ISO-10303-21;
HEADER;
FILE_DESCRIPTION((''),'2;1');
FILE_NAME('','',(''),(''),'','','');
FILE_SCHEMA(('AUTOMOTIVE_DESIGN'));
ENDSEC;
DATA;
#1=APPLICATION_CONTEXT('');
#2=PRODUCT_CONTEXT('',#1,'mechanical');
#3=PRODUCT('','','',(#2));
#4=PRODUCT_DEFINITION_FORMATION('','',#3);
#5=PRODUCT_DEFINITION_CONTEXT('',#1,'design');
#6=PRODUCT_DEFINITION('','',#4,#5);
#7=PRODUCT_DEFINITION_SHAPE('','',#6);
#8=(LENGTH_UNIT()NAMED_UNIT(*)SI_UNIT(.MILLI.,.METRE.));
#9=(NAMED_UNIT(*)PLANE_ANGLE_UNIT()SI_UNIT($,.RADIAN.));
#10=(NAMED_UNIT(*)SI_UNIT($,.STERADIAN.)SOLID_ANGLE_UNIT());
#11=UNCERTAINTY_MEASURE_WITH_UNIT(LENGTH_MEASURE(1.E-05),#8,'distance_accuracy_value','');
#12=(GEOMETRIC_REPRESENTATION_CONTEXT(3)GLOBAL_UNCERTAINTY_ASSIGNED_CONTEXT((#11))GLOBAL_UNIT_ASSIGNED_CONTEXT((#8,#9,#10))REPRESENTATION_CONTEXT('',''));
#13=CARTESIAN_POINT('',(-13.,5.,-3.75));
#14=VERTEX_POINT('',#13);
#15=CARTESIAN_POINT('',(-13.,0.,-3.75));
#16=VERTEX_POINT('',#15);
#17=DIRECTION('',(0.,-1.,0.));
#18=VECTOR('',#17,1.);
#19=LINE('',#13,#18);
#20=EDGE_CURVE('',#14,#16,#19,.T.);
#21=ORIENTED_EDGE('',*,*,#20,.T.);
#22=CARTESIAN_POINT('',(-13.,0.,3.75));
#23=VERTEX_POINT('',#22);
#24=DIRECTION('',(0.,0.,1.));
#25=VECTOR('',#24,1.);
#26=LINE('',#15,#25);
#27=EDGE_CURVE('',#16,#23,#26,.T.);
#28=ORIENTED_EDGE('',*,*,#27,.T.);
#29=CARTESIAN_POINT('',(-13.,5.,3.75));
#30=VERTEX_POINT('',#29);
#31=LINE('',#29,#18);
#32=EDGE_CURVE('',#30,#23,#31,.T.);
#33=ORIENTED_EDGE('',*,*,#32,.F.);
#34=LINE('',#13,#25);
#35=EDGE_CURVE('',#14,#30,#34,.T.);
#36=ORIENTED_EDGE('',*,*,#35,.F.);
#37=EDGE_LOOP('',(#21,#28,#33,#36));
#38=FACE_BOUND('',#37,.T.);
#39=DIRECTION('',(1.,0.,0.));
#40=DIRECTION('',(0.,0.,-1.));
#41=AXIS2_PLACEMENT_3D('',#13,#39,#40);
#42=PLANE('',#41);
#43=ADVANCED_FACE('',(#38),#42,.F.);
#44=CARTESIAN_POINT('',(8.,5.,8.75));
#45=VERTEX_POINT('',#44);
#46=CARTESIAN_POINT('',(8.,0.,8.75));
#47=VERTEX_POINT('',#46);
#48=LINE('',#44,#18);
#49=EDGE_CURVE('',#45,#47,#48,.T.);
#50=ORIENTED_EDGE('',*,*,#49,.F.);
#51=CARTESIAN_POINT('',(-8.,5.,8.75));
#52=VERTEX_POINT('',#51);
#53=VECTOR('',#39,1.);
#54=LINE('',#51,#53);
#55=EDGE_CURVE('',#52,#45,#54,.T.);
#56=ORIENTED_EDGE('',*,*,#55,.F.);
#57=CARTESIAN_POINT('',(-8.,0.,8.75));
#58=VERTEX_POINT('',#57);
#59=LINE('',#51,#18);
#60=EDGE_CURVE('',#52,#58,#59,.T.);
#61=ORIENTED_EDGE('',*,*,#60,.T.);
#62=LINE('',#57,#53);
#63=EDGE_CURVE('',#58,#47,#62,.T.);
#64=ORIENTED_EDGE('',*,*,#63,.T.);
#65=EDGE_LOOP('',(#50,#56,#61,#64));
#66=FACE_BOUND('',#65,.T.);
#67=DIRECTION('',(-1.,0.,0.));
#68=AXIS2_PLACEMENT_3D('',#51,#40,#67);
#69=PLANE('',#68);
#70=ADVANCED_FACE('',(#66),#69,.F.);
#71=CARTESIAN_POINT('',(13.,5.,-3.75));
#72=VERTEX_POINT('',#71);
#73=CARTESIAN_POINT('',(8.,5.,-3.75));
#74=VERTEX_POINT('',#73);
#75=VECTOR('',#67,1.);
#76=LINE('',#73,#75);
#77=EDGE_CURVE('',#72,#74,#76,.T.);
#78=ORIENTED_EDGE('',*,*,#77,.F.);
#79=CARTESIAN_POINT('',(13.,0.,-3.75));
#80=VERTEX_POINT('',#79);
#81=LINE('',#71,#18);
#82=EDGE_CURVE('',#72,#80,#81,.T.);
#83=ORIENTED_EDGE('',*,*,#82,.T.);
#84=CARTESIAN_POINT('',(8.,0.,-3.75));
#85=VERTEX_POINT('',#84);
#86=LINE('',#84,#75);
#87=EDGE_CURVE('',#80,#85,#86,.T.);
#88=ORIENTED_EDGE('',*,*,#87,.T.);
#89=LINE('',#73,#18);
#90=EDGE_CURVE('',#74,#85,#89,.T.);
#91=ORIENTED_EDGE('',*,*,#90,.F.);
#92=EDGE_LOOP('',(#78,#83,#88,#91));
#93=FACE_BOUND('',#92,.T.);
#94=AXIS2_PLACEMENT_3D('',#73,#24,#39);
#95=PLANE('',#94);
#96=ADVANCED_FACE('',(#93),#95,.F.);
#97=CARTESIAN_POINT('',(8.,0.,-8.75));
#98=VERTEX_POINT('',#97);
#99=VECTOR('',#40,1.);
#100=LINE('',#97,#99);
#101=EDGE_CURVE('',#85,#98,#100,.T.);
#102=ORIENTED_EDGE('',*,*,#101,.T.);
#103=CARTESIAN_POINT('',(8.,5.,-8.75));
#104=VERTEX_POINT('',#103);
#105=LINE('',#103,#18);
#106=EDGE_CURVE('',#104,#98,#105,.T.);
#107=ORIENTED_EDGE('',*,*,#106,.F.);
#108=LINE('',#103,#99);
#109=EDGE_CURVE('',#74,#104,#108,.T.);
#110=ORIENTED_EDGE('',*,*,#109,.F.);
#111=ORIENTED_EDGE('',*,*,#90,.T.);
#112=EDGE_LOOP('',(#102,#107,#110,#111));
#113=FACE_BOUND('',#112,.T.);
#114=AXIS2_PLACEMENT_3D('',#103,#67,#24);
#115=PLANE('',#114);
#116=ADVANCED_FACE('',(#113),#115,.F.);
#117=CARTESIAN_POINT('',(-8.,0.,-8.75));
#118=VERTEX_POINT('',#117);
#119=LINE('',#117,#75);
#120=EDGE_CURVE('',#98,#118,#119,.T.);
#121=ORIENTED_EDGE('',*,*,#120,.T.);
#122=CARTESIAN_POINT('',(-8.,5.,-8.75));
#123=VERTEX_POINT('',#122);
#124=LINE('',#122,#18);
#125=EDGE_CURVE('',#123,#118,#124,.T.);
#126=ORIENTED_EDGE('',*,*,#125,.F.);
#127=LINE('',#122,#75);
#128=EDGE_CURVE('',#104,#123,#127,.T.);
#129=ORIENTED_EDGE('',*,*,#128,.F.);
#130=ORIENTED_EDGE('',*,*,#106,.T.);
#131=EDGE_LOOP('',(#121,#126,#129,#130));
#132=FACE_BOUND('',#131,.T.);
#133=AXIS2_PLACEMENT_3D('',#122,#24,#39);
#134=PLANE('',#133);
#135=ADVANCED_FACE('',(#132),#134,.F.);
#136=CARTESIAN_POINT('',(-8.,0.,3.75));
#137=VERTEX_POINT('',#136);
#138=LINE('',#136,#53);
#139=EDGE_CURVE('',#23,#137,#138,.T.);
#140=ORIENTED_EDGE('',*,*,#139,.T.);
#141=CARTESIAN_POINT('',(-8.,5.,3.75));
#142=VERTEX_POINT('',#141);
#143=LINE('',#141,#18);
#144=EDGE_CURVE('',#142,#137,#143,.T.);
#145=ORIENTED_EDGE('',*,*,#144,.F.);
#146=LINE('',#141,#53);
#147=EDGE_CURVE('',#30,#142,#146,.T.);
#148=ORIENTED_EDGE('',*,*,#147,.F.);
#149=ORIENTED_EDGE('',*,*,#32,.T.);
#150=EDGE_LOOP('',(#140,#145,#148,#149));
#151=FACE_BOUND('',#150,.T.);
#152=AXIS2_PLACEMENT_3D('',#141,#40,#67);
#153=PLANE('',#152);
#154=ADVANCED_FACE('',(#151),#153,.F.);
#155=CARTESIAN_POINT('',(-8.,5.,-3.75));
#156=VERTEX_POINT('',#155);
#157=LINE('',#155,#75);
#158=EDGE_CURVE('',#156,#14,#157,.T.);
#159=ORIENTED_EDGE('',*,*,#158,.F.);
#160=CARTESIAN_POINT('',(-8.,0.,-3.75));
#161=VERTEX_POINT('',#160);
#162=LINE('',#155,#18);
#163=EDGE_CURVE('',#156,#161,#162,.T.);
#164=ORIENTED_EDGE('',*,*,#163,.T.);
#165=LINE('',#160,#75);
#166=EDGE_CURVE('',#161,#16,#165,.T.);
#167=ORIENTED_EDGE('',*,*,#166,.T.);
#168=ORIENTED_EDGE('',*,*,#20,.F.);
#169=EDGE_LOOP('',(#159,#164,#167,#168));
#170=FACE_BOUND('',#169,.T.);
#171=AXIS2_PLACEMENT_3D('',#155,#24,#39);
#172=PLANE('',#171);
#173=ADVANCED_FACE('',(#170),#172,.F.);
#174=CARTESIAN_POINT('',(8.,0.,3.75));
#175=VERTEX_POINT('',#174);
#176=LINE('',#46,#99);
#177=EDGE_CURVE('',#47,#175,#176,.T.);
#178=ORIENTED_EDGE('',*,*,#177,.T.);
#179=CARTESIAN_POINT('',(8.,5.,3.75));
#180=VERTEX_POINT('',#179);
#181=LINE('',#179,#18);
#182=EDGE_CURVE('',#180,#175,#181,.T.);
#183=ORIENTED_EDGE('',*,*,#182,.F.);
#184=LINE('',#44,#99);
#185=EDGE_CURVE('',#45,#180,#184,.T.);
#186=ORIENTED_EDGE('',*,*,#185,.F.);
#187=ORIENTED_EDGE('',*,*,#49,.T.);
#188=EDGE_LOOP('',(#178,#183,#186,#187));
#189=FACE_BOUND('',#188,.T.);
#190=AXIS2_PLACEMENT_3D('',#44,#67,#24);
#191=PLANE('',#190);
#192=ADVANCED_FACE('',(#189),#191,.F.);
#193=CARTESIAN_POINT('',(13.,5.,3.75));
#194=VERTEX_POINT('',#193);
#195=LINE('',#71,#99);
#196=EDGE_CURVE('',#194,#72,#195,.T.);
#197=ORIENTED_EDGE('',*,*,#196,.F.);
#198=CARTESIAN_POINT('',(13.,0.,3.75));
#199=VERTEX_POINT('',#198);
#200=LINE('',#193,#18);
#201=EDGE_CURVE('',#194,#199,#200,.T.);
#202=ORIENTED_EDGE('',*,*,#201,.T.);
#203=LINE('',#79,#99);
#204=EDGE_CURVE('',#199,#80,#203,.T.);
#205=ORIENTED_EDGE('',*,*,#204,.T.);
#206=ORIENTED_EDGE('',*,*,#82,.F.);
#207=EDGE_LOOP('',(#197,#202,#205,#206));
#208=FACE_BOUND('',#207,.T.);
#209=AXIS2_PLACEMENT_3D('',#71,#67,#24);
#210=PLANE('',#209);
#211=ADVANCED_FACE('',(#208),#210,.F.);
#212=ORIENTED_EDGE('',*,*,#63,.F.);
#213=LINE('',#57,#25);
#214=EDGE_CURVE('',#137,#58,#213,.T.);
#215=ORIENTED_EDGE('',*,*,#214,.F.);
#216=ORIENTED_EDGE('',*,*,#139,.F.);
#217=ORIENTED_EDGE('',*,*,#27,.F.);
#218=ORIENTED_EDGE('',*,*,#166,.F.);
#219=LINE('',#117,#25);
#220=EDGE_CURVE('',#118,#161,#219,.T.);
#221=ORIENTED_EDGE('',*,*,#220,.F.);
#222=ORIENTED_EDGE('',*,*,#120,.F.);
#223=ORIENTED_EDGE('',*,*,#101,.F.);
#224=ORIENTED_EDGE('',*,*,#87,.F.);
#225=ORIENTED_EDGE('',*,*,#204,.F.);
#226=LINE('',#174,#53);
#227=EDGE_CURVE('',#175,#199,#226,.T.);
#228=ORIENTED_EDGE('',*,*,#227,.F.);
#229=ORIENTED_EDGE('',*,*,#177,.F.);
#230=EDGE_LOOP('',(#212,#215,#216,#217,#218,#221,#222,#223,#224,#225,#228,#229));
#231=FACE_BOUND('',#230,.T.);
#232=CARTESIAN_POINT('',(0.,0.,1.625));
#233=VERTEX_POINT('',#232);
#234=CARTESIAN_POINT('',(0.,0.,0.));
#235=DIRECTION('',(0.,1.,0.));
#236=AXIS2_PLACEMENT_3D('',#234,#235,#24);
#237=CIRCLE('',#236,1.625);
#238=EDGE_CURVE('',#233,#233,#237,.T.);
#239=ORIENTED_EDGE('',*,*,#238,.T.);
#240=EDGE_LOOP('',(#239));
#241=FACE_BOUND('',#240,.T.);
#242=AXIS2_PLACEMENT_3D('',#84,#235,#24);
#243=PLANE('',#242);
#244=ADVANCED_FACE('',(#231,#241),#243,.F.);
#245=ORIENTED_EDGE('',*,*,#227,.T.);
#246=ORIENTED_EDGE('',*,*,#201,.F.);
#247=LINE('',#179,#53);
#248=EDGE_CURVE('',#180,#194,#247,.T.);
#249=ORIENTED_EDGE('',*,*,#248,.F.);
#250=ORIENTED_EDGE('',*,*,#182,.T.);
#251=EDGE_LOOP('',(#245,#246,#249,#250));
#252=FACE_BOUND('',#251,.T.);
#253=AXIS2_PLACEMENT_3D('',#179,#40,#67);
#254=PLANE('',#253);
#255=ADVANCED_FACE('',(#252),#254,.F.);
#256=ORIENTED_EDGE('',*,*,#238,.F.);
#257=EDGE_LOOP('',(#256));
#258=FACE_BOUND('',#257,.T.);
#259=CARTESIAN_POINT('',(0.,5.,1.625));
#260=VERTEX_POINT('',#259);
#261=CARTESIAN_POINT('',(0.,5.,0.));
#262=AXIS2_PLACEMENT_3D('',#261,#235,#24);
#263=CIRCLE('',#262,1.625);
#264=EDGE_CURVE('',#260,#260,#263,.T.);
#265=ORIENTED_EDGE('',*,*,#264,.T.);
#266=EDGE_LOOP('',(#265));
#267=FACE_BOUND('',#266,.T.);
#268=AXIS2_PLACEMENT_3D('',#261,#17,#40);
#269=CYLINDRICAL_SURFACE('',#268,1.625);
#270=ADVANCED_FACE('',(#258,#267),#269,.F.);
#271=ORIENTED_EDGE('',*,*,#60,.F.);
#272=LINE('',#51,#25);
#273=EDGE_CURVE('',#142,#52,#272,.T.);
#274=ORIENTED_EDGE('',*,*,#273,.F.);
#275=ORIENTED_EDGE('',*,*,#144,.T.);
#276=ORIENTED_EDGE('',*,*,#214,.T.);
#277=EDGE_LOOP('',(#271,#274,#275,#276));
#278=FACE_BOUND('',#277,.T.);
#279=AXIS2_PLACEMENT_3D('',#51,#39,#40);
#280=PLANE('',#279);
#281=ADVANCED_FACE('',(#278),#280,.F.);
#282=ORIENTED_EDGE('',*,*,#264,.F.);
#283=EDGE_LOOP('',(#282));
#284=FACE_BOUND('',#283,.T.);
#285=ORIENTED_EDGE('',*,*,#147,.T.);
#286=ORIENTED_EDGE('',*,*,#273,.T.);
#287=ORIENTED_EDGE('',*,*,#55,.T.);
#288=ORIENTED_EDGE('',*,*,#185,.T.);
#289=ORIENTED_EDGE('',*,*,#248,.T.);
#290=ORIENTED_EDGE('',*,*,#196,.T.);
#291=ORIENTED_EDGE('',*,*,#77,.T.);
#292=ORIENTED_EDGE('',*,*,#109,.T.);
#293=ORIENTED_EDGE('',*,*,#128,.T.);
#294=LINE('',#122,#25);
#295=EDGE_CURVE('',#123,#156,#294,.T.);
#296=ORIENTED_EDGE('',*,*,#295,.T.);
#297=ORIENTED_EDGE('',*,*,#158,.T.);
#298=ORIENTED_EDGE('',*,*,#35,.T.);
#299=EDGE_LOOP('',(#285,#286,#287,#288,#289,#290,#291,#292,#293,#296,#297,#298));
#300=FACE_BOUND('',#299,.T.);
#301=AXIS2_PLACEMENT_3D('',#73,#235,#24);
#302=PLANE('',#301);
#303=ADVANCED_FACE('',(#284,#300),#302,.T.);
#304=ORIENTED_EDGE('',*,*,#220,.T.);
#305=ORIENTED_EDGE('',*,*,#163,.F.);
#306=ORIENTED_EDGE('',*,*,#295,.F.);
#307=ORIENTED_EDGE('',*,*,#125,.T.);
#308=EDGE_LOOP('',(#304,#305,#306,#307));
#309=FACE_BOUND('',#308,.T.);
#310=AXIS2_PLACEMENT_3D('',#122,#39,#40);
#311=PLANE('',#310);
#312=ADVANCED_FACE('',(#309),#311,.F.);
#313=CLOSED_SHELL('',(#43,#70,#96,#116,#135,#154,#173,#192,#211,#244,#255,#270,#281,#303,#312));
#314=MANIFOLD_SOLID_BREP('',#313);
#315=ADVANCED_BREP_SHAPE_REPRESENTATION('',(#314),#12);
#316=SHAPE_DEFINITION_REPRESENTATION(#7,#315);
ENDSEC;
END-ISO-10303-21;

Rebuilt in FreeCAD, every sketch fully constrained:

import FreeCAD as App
import Part
import Sketcher
from FreeCAD import Vector


def add_polygon(sketch, points):
    """Adds a closed chain of lines whose ends are joined by coincident constraints."""
    first, n = sketch.GeometryCount, len(points)
    for a, b in zip(points, points[1:] + points[:1]):
        sketch.addGeometry(Part.LineSegment(App.Vector(*a, 0), App.Vector(*b, 0)), False)
    for i in range(n):
        sketch.addConstraint(Sketcher.Constraint("Coincident", first + i, 2, first + (i + 1) % n, 1))

doc = App.newDocument("Part")
body = doc.addObject("PartDesign::Body", "Body")

sketch1 = body.newObject("Sketcher::SketchObject", "Sketch")
sketch1.AttachmentSupport = (doc.getObject("XZ_Plane"), [""])
sketch1.MapMode = "FlatFace"
add_polygon(sketch1, [(8, -8.8), (-8, -8.8), (-8, -3.8), (-13, -3.8), (-13, 3.8), (-8, 3.8), (-8, 8.8), (8, 8.8), (8, 3.8), (13, 3.8), (13, -3.8), (8, -3.8)])
sketch1.addGeometry(Part.Circle(Vector(0, 0, 0), Vector(0, 0, 1), 1.6), False)
sketch1.addConstraint([
    Sketcher.Constraint("Horizontal", 0),
    Sketcher.Constraint("Vertical", 1),
    Sketcher.Constraint("Horizontal", 2),
    Sketcher.Constraint("Vertical", 3),
    Sketcher.Constraint("Horizontal", 4),
    Sketcher.Constraint("Vertical", 5),
    Sketcher.Constraint("Horizontal", 6),
    Sketcher.Constraint("Vertical", 7),
    Sketcher.Constraint("Horizontal", 8),
    Sketcher.Constraint("Vertical", 9),
    Sketcher.Constraint("Horizontal", 10),
    Sketcher.Constraint("Vertical", 11),
    Sketcher.Constraint("Coincident", 12, 3, -1, 1),
    Sketcher.Constraint("Symmetric", 0, 2, 6, 2, -1, 1),
    Sketcher.Constraint("Symmetric", 2, 2, 8, 2, -1, 1),
    Sketcher.Constraint("Symmetric", 4, 2, 10, 2, -1, 1),
    Sketcher.Constraint("Symmetric", 4, 2, 7, 2, -2),
    Sketcher.Constraint("Equal", 10, 1),
    Sketcher.Constraint("Diameter", 12, 3.25),
    Sketcher.Constraint("DistanceX", 0, 2, 0, 1, 16.0),
    Sketcher.Constraint("DistanceX", 2, 2, 2, 1, 5.0),
    Sketcher.Constraint("DistanceY", 3, 1, 3, 2, 7.5),
])
pad1 = body.newObject("PartDesign::Pad", "Pad")
pad1.Profile = sketch1
pad1.Length = 5
pad1.Reversed = True

doc.recompute()
